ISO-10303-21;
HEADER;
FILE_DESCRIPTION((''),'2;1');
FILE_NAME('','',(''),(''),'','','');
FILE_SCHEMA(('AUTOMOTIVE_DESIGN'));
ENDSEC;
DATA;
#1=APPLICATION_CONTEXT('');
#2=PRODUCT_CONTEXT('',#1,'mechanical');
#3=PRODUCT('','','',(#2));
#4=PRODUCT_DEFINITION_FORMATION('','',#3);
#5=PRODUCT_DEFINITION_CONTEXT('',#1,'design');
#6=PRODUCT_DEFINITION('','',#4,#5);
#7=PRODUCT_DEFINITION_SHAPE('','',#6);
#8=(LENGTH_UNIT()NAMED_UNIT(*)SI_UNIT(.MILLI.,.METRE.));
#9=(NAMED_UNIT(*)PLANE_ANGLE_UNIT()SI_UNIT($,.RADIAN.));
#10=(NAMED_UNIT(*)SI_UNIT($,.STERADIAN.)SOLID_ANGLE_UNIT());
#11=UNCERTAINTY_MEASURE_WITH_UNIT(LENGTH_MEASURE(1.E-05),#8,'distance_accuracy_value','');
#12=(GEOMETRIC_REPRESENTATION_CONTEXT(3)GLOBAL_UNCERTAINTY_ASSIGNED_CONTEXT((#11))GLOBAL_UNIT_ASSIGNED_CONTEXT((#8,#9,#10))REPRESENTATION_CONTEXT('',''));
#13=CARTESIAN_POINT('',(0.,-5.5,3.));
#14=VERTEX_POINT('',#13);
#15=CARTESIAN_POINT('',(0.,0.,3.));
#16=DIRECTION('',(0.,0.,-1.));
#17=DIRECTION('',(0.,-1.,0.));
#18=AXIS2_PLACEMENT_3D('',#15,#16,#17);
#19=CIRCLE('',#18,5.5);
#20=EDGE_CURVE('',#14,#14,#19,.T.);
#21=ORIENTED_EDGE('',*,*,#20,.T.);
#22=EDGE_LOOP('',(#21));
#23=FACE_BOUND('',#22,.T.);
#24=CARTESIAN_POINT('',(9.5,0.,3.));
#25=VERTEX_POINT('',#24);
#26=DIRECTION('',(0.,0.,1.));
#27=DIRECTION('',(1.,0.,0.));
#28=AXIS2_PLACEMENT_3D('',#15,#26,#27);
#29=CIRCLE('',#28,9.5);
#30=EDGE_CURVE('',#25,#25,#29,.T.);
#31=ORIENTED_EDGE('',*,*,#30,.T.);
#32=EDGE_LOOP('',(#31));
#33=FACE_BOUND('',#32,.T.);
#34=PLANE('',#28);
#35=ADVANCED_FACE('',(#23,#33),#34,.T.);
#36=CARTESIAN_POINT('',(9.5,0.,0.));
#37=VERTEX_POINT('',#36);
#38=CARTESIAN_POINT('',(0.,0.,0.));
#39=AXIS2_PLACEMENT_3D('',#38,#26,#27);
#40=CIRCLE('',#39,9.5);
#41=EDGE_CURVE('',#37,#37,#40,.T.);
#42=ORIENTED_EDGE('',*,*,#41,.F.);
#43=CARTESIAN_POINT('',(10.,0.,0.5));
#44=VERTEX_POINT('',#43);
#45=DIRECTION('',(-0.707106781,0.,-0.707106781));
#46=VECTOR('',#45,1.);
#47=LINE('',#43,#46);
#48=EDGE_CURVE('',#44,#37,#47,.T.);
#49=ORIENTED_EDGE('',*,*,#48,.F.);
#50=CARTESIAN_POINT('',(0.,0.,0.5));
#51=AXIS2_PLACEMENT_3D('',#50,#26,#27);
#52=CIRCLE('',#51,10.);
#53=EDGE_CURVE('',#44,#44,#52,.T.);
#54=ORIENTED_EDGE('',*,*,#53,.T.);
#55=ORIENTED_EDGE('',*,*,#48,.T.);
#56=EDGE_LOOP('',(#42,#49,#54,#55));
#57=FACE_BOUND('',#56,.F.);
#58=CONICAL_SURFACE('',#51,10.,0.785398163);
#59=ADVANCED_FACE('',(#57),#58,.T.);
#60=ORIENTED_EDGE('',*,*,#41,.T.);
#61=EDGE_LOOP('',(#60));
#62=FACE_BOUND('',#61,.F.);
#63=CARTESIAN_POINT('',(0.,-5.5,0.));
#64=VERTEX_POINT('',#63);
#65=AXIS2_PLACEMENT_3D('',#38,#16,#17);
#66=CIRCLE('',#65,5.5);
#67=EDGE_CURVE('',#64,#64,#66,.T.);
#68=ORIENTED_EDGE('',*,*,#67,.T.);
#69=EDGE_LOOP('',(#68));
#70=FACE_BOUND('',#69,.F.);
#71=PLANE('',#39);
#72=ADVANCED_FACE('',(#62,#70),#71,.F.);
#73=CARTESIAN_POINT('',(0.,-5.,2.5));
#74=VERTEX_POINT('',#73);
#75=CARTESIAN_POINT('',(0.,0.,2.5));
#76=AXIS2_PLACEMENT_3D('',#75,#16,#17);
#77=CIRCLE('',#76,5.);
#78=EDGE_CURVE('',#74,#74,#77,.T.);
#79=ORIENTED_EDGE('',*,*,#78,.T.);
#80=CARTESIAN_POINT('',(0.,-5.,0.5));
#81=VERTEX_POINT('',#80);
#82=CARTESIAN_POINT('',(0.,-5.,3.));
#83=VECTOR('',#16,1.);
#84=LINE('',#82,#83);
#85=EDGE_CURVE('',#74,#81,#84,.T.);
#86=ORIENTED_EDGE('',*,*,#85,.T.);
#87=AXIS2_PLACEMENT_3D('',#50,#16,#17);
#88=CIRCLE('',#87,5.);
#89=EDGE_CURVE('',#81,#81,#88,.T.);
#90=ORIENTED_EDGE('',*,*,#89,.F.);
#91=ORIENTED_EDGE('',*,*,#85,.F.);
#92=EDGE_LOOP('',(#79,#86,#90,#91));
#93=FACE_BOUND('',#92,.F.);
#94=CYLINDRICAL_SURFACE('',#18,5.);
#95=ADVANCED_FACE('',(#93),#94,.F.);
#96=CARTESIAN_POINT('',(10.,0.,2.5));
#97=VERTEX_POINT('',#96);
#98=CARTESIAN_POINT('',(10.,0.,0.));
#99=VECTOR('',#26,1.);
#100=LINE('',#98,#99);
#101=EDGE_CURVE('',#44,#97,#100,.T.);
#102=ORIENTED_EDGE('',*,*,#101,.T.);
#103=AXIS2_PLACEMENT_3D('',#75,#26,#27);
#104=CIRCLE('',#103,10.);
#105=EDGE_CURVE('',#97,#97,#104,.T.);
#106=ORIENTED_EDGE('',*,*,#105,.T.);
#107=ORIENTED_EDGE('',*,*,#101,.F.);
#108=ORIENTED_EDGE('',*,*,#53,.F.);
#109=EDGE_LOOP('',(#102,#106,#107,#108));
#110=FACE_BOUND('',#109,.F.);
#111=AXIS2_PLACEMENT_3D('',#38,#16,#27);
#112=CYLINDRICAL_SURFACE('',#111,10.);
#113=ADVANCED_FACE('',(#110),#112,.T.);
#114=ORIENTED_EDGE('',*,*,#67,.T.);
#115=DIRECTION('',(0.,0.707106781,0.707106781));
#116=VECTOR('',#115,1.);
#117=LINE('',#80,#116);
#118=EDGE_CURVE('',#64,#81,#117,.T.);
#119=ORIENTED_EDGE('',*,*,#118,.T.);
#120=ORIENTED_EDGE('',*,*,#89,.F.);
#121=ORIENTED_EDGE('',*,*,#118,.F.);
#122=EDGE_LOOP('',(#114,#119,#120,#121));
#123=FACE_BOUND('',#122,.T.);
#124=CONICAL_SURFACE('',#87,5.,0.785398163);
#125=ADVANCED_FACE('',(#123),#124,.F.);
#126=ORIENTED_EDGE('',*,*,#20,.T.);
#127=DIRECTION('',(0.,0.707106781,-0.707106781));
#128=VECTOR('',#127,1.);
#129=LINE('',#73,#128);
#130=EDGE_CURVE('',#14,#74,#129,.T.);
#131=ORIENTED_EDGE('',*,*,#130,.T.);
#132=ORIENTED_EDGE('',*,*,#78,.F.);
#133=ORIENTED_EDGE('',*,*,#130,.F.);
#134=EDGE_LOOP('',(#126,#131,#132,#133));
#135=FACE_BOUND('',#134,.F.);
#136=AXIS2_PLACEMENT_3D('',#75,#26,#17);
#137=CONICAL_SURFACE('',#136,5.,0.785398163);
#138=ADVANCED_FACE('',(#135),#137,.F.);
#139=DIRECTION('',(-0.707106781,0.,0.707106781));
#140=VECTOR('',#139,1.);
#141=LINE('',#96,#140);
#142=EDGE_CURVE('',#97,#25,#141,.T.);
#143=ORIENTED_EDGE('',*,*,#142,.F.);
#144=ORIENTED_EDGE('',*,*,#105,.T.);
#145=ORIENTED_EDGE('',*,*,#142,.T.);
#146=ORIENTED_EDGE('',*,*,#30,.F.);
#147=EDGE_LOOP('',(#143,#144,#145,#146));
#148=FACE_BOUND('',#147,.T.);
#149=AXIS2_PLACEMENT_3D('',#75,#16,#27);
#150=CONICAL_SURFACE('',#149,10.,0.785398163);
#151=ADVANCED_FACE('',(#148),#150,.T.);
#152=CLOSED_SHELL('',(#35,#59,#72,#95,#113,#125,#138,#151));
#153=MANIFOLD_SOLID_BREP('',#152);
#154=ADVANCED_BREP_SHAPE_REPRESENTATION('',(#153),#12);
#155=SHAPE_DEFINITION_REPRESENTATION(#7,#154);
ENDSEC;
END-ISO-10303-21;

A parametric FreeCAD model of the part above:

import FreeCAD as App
import Part
import Sketcher

V = App.Vector
Q = App.Units.Quantity


def edges_at(feature, points):
    """Names of the edges that pass closest to the given points."""
    edges = feature.Shape.Edges
    near = lambda p: min(range(len(edges)), key=lambda i: edges[i].distToShape(Part.Vertex(*p))[0])
    return sorted({f"Edge{near(p) + 1}" for p in points})

doc = App.newDocument("Part")
body = doc.addObject("PartDesign::Body", "Body")

# Sketch on XY plane
sketch1 = body.newObject("Sketcher::SketchObject", "Sketch")
sketch1.AttachmentSupport = (doc.getObject("XY_Plane"), [""])
sketch1.MapMode = "FlatFace"
sketch1.addGeometry(Part.Circle(V(0, 0, 0), V(0, 0, 1), 10), False)
sketch1.addConstraint(Sketcher.Constraint("Coincident", 0, 3, -1, 1))
sketch1.addConstraint(Sketcher.Constraint("Diameter", 0, Q("20 mm")))
pad1 = body.newObject("PartDesign::Pad", "Pad")
pad1.Profile = sketch1
pad1.Length = 3

# Sketch on XY plane
sketch2 = body.newObject("Sketcher::SketchObject", "Sketch001")
sketch2.AttachmentSupport = (doc.getObject("XY_Plane"), [""])
sketch2.MapMode = "FlatFace"
sketch2.AttachmentOffset = App.Placement(V(0, 0, 3), App.Rotation())
sketch2.addGeometry(Part.Circle(V(0, 0, 0), V(0, 0, 1), 5), False)
sketch2.addConstraint(Sketcher.Constraint("Coincident", 0, 3, -1, 1))
sketch2.addConstraint(Sketcher.Constraint("Diameter", 0, Q("10 mm")))
doc.recompute()
hole = body.newObject("PartDesign::Hole", "Hole")
hole.Profile = sketch2
hole.ThreadType = "None"
hole.Diameter = 10
hole.DepthType = "ThroughAll"
doc.recompute()

chamfer = body.newObject("PartDesign::Chamfer", "Chamfer")
chamfer.Base = (hole, edges_at(hole, [
    (-10, 0, 3),
    (-10, 0, 0),
    (0, 5, 3),
    (0, 5, 0),
]))
chamfer.Size = 0.5

doc.recompute()
